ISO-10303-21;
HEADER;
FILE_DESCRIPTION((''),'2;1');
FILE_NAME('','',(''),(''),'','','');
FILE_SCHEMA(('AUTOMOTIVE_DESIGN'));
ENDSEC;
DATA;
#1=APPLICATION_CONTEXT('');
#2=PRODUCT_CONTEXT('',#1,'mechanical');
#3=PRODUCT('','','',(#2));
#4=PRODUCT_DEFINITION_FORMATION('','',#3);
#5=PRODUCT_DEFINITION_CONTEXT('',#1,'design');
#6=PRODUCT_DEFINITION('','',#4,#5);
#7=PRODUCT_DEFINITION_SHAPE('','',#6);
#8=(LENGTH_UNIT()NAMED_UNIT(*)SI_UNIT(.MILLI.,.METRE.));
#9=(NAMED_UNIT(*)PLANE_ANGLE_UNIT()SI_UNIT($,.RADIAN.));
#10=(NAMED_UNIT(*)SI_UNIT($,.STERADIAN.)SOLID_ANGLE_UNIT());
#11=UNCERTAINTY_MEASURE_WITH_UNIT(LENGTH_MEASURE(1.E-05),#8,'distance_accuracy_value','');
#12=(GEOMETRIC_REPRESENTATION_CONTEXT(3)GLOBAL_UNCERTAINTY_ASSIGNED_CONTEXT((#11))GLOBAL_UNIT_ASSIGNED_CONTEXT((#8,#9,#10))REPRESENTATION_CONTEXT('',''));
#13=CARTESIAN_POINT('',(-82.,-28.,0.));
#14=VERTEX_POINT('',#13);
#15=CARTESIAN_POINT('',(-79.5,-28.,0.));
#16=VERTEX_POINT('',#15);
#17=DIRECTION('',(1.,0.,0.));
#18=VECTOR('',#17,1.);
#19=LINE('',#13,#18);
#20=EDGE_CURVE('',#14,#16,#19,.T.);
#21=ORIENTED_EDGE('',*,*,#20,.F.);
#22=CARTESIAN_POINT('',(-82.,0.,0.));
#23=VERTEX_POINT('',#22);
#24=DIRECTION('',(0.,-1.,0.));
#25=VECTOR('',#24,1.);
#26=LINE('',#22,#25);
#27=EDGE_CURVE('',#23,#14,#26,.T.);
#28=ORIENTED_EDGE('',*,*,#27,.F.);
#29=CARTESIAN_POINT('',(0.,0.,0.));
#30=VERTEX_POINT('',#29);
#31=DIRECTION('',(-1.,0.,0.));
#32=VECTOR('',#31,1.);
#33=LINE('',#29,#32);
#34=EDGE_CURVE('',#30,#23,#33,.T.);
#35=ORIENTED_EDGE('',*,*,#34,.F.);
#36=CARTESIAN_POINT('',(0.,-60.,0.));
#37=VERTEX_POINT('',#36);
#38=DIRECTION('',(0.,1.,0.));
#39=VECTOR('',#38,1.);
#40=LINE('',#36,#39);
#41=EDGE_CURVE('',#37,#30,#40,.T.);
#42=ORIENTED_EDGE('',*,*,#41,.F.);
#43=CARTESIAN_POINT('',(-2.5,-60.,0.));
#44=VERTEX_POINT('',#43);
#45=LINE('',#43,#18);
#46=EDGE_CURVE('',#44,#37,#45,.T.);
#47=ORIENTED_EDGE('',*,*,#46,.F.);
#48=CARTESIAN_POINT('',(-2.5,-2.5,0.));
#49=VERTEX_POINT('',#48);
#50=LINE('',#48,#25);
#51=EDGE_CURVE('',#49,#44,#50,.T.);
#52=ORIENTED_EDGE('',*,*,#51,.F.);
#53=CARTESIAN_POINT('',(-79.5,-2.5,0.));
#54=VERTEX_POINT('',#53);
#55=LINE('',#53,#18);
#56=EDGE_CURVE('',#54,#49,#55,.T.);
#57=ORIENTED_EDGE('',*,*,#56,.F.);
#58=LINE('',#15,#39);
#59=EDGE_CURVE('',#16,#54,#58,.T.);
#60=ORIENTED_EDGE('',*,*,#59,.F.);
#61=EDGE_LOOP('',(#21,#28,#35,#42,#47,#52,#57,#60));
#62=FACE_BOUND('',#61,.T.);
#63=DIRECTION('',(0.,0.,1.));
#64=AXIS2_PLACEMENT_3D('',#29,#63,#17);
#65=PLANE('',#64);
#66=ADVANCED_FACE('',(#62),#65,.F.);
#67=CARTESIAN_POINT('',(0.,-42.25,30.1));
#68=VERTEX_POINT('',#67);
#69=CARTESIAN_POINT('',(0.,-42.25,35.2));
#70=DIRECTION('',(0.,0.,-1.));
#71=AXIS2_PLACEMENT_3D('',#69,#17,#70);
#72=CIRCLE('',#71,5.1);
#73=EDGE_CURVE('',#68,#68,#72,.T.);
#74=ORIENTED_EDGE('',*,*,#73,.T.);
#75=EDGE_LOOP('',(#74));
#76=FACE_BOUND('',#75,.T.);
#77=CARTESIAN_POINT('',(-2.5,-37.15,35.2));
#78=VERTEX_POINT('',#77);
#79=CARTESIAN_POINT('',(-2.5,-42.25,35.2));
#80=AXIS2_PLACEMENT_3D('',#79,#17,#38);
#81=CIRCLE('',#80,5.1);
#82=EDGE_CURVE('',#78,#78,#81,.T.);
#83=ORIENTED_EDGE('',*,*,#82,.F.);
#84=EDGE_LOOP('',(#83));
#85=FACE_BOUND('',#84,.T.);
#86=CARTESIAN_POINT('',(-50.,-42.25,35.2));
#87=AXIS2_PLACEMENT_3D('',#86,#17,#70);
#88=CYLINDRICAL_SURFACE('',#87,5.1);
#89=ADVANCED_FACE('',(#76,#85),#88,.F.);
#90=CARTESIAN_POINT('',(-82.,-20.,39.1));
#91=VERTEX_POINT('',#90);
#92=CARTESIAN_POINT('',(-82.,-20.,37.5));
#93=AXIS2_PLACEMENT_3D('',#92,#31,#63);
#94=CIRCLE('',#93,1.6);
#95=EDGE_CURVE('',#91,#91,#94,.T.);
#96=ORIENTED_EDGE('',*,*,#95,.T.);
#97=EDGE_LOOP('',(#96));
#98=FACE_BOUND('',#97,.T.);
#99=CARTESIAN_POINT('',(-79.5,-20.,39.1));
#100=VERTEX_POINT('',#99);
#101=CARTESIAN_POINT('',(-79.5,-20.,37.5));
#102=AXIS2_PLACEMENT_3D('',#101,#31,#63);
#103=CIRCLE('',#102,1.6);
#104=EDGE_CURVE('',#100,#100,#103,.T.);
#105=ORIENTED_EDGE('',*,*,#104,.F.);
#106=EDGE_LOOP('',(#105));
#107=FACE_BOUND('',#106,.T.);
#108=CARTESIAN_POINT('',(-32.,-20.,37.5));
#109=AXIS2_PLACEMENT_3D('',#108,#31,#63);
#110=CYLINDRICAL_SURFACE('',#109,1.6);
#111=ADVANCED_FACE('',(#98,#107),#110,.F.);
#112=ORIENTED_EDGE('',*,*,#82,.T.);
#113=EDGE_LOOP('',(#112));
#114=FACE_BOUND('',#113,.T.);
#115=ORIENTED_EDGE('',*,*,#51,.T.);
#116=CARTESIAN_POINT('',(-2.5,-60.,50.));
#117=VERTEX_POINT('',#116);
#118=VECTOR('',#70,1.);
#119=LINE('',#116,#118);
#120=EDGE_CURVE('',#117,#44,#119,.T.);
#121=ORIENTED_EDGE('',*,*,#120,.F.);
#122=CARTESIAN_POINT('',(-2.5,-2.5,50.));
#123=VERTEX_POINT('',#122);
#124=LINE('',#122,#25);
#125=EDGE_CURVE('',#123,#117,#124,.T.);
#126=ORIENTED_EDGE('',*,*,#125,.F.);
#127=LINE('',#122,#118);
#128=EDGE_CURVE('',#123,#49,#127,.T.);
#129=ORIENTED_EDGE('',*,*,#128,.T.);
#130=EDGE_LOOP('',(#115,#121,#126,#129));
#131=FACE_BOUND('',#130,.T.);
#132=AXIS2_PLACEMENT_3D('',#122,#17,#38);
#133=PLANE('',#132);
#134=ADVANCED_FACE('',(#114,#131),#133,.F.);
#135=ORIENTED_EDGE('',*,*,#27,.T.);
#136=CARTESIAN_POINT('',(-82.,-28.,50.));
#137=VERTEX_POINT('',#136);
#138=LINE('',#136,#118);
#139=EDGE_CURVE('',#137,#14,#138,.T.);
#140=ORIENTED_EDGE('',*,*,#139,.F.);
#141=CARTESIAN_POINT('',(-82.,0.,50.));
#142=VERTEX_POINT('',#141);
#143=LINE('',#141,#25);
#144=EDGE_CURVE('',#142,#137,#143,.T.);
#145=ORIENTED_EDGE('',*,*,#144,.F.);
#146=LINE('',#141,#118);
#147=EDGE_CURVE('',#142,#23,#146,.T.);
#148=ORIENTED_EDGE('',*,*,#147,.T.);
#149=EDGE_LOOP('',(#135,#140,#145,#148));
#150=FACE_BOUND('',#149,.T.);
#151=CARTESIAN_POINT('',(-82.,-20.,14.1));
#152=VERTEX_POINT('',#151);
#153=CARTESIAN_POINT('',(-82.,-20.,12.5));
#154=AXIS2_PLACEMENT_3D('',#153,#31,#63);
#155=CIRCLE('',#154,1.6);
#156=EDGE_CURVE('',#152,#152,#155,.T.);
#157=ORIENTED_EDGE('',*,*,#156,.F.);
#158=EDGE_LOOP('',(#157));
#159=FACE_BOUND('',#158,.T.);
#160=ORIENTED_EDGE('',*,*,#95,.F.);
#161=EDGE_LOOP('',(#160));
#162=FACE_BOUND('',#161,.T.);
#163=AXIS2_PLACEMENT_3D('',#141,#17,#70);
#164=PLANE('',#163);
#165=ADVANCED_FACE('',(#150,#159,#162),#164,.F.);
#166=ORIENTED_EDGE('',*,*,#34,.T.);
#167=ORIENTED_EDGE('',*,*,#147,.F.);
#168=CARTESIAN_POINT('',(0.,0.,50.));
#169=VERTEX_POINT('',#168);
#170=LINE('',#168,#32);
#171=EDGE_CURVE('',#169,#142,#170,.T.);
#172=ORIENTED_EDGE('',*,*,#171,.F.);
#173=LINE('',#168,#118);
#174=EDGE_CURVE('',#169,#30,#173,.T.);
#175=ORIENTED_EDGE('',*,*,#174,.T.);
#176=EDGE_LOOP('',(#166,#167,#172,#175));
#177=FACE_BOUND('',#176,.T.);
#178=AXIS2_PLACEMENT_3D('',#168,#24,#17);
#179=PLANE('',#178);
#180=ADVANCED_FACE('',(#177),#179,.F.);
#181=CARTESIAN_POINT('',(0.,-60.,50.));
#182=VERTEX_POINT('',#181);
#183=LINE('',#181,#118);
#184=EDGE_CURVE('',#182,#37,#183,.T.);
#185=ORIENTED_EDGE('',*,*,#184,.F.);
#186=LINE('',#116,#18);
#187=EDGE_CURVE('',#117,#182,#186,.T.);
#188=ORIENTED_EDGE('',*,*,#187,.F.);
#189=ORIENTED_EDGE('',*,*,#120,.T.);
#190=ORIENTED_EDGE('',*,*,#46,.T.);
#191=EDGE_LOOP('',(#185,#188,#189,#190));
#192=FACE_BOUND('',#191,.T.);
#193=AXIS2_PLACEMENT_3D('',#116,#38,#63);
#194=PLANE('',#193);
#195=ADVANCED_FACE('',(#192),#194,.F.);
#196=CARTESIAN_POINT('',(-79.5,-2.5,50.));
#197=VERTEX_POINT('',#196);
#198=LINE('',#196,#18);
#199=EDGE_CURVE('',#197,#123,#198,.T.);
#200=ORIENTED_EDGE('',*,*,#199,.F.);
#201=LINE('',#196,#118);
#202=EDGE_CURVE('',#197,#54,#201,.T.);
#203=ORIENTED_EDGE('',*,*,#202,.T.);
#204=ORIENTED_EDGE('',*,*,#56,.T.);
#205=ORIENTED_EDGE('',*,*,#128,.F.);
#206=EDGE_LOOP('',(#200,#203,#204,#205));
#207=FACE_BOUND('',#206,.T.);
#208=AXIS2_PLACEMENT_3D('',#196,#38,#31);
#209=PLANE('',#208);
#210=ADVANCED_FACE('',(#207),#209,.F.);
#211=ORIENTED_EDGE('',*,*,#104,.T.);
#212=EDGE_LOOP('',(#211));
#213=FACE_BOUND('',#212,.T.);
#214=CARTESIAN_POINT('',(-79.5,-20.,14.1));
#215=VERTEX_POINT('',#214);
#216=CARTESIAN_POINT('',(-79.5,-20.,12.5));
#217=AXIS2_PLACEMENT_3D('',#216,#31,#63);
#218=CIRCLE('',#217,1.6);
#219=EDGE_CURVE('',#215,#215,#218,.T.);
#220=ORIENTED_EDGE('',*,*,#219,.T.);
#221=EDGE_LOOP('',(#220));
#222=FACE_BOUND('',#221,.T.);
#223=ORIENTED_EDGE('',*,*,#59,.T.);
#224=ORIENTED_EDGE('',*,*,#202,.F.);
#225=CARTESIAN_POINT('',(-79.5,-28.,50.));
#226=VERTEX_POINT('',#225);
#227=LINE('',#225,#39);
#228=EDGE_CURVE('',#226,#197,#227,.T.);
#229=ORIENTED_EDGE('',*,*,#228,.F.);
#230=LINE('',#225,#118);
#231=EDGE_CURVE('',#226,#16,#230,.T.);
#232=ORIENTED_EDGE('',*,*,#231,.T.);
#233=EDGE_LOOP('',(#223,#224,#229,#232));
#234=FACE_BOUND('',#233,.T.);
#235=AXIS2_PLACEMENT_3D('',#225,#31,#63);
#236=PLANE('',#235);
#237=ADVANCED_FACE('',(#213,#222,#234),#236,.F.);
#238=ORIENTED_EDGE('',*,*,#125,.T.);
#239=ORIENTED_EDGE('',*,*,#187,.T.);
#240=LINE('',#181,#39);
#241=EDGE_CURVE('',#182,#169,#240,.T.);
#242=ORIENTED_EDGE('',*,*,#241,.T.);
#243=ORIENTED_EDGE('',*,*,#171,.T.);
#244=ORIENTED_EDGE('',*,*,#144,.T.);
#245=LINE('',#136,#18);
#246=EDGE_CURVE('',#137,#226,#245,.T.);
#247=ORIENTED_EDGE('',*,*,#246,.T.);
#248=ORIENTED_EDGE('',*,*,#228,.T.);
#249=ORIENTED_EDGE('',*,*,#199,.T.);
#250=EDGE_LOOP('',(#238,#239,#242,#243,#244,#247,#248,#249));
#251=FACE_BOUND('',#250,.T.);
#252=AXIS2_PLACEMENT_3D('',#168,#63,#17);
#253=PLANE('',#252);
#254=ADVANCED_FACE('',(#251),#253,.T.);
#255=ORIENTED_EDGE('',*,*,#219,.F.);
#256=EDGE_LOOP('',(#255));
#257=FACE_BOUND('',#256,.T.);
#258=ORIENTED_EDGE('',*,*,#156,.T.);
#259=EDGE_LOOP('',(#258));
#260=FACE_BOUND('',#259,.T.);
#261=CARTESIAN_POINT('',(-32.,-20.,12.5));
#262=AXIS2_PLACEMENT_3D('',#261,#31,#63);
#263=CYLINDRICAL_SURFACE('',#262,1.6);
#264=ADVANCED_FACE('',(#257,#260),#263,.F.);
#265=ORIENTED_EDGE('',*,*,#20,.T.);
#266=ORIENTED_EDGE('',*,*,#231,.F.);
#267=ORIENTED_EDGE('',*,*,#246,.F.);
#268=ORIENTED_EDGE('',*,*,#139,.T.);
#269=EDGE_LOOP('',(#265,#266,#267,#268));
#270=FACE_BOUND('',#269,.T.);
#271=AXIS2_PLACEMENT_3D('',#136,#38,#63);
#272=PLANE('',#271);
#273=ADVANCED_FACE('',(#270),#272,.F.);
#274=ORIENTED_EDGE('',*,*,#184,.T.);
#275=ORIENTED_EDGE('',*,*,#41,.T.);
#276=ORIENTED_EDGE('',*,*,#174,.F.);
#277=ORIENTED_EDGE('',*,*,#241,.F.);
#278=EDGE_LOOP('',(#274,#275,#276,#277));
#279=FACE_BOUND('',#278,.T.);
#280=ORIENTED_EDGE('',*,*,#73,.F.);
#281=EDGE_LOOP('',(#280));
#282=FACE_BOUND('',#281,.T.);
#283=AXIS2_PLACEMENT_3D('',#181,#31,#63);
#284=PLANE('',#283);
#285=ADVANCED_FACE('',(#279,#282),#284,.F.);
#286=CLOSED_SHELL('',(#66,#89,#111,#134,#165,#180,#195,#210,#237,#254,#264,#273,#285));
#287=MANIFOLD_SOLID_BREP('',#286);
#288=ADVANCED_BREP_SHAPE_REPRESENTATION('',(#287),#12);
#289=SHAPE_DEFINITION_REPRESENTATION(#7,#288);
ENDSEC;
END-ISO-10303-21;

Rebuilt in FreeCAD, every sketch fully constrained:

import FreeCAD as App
import Part
import Sketcher

V = App.Vector


def add_polygon(sketch, points):
    """Adds a closed chain of lines whose ends are joined by coincident constraints."""
    first, n = sketch.GeometryCount, len(points)
    for a, b in zip(points, points[1:] + points[:1]):
        sketch.addGeometry(Part.LineSegment(App.Vector(*a, 0), App.Vector(*b, 0)), False)
    for i in range(n):
        sketch.addConstraint(Sketcher.Constraint("Coincident", first + i, 2, first + (i + 1) % n, 1))

doc = App.newDocument("Part")
body = doc.addObject("PartDesign::Body", "Body")

# Sketch on XY plane
sketch1 = doc.addObject("Sketcher::SketchObject", "Sketch")
body.addObject(sketch1)
sketch1.AttachmentSupport = (doc.XY_Plane, [""])
sketch1.MapMode = "FlatFace"
add_polygon(sketch1, [(0, 0), (-82, 0), (-82, -28), (-79.5, -28), (-79.5, -2.5), (-2.5, -2.5), (-2.5, -60), (0, -60)])  # lines 0-7
sketch1.addConstraint([
    Sketcher.Constraint("Horizontal", 0),
    Sketcher.Constraint("Vertical", 1),
    Sketcher.Constraint("Horizontal", 2),
    Sketcher.Constraint("Vertical", 3),
    Sketcher.Constraint("Horizontal", 4),
    Sketcher.Constraint("Vertical", 5),
    Sketcher.Constraint("Horizontal", 6),
    Sketcher.Constraint("Vertical", 7),
    Sketcher.Constraint("Coincident", 7, 2, -1, 1),
    Sketcher.Constraint("Equal", 2, 6),
    Sketcher.Constraint("DistanceX", 0, 2, 0, 1, 82.0),
    Sketcher.Constraint("DistanceX", 4, 1, 4, 2, 77.0),
    Sketcher.Constraint("DistanceY", 1, 2, 1, 1, 28.0),
    Sketcher.Constraint("DistanceY", 7, 1, 7, 2, 60.0),
    Sketcher.Constraint("DistanceY", 3, 1, 3, 2, 25.5),
])
pad1 = doc.addObject("PartDesign::Pad", "Pad")
body.addObject(pad1)
pad1.Profile = sketch1
pad1.Length = 50

# Sketch on YZ plane
sketch2 = doc.addObject("Sketcher::SketchObject", "Sketch001")
body.addObject(sketch2)
sketch2.AttachmentSupport = (doc.YZ_Plane, [""])
sketch2.MapMode = "FlatFace"
sketch2.AttachmentOffset = App.Placement(V(0, 0, -82), App.Rotation())
sketch2.addGeometry([
    Part.Circle(V(-20, 12.5, 0), V(0, 0, 1), 1.6),
    Part.Circle(V(-20, 37.5, 0), V(0, 0, 1), 1.6),
], False)
sketch2.addConstraint([
    Sketcher.Constraint("Equal", 0, 1),
    Sketcher.Constraint("Vertical", 0, 3, 1, 3),
    Sketcher.Constraint("Diameter", 0, 3.2),
    Sketcher.Constraint("DistanceX", 0, 3, -1, 1, 20.0),
    Sketcher.Constraint("DistanceY", 0, 3, 1, 3, 25.0),
    Sketcher.Constraint("DistanceY", -1, 1, 0, 3, 12.5),
])
pocket1 = doc.addObject("PartDesign::Pocket", "Pocket")
body.addObject(pocket1)
pocket1.Profile = sketch2
pocket1.Length = 50
pocket1.Reversed = True

# Sketch on YZ plane
sketch3 = doc.addObject("Sketcher::SketchObject", "Sketch002")
body.addObject(sketch3)
sketch3.AttachmentSupport = (doc.YZ_Plane, [""])
sketch3.MapMode = "FlatFace"
sketch3.addGeometry(Part.Circle(V(-42.25, 35.2, 0), V(0, 0, 1), 5.1), False)
sketch3.addConstraint([
    Sketcher.Constraint("Diameter", 0, 10.2),
    Sketcher.Constraint("DistanceY", -1, 1, 0, 3, 35.2),
    Sketcher.Constraint("DistanceX", 0, 3, -1, 1, 42.25),
])
pocket2 = doc.addObject("PartDesign::Pocket", "Pocket001")
body.addObject(pocket2)
pocket2.Profile = sketch3
pocket2.Length = 50

doc.recompute()
